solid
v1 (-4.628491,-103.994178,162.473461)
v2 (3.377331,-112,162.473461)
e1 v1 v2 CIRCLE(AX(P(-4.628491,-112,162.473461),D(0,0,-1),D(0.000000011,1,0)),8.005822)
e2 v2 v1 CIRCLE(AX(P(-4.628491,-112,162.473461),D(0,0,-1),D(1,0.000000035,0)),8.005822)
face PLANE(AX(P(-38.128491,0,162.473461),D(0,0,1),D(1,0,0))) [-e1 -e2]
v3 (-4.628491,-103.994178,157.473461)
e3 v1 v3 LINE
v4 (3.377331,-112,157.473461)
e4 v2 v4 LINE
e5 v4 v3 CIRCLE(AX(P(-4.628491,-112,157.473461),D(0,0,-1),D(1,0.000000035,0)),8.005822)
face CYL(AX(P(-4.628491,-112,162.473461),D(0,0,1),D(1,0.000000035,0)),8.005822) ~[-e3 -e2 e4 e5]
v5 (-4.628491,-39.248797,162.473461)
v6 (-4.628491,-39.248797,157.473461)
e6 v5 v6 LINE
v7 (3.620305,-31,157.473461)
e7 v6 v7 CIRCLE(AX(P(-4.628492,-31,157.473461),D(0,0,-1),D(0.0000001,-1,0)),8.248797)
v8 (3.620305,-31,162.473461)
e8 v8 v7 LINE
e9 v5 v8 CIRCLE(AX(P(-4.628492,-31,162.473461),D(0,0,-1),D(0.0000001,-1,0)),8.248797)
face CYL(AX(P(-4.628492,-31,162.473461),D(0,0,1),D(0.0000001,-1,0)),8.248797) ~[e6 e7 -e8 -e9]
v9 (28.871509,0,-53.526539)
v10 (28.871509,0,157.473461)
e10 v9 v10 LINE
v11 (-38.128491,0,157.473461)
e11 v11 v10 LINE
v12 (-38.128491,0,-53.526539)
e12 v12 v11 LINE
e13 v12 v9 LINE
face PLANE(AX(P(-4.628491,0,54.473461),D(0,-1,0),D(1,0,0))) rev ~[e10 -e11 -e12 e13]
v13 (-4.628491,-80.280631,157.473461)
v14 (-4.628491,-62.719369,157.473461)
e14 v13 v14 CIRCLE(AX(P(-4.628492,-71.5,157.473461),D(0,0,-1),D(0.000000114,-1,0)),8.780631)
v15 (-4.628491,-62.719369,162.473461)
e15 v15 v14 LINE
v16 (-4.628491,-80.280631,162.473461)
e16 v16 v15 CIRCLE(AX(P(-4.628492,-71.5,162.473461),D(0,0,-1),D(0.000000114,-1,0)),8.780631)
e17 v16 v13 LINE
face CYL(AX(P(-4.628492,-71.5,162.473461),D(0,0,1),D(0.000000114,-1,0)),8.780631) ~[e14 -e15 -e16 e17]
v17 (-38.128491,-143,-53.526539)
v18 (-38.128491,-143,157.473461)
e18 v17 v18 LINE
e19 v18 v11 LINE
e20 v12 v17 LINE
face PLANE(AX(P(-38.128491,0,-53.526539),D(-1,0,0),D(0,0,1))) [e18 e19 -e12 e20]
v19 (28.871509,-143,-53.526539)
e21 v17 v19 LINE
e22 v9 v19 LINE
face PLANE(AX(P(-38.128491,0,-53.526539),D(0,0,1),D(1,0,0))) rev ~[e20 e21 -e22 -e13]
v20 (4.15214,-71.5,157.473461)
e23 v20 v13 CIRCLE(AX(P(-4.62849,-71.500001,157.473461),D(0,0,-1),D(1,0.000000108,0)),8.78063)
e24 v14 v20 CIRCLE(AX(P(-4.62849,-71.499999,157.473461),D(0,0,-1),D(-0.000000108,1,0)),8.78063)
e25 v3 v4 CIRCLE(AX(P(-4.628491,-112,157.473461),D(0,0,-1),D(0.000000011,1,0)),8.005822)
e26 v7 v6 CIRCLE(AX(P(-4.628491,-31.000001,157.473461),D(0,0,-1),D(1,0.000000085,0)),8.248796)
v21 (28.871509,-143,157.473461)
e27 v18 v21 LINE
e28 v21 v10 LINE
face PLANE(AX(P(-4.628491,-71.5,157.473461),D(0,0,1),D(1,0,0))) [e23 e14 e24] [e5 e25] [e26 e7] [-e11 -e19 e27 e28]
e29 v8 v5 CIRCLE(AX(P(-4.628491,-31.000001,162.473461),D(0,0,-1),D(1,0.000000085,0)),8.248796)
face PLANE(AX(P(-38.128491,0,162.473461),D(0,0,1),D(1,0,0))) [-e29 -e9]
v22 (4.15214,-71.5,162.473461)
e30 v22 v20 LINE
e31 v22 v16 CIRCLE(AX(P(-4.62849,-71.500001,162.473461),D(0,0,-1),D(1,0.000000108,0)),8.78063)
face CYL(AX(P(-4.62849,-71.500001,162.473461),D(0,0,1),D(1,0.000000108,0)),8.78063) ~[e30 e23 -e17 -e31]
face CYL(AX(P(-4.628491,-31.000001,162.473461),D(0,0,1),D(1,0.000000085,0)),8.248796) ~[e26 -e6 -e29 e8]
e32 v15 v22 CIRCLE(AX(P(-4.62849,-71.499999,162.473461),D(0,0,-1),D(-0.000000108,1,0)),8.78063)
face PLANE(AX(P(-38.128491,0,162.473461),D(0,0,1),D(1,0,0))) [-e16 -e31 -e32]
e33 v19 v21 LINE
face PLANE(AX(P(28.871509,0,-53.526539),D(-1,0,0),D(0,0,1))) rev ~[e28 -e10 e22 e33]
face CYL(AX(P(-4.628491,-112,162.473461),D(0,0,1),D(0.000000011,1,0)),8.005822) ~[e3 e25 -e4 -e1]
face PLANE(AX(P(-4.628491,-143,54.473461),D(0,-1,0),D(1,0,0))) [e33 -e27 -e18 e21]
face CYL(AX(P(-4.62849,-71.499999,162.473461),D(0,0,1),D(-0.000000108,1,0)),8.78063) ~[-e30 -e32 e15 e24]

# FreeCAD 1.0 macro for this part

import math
import FreeCAD as App
import Part
import Sketcher
Q = App.Units.Quantity


def add_polygon(sketch, points):
    """Adds a closed chain of lines whose ends are joined by coincident constraints."""
    first, n = sketch.GeometryCount, len(points)
    for a, b in zip(points, points[1:] + points[:1]):
        sketch.addGeometry(Part.LineSegment(App.Vector(*a, 0), App.Vector(*b, 0)), False)
    for i in range(n):
        sketch.addConstraint(Sketcher.Constraint("Coincident", first + i, 2, first + (i + 1) % n, 1))

doc = App.newDocument("Part")
body = doc.addObject("PartDesign::Body", "Body")

sketch1 = body.newObject("Sketcher::SketchObject", "Sketch")
sketch1.AttachmentSupport = (doc.getObject("XZ_Plane"), [""])
sketch1.MapMode = "FlatFace"
add_polygon(sketch1, [(-38, 162), (-38, -54), (29, -54), (29, 162)])
sketch1.addConstraint(Sketcher.Constraint("Vertical", 0))
sketch1.addConstraint(Sketcher.Constraint("Horizontal", 1))
sketch1.addConstraint(Sketcher.Constraint("Vertical", 2))
sketch1.addConstraint(Sketcher.Constraint("Horizontal", 3))
sketch1.addConstraint(Sketcher.Constraint("DistanceX", 1, 1, 1, 2, Q("67 mm")))
sketch1.addConstraint(Sketcher.Constraint("DistanceY", 0, 2, 0, 1, Q("216 mm")))
sketch1.addConstraint(Sketcher.Constraint("DistanceX", 0, 2, -1, 1, Q("38.128491 mm")))
sketch1.addConstraint(Sketcher.Constraint("DistanceY", 0, 2, -1, 1, Q("53.526539 mm")))
pad1 = body.newObject("PartDesign::Pad", "Pad")
pad1.Profile = sketch1
pad1.Length = 143

sketch2 = body.newObject("Sketcher::SketchObject", "Sketch001")
sketch2.AttachmentSupport = (doc.getObject("XY_Plane"), [""])
sketch2.MapMode = "FlatFace"
sketch2.AttachmentOffset = App.Placement(App.Vector(0, 0, 162.473461), App.Rotation())
add_polygon(sketch2, [(-38, 0), (-38, -143), (29, -143), (29, 0)])
sketch2.addGeometry(Part.ArcOfCircle(Part.Circle(App.Vector(-5, -112, 0), App.Vector(0, 0, 1), 8), math.radians(0), math.radians(90)), False)
sketch2.addGeometry(Part.ArcOfCircle(Part.Circle(App.Vector(-5, -112, 0), App.Vector(0, 0, 1), 8), math.radians(90), math.radians(360)), False)
sketch2.addGeometry(Part.ArcOfCircle(Part.Circle(App.Vector(-5, -72, 0), App.Vector(0, 0, 1), 9), math.radians(-90), math.radians(0)), False)
sketch2.addGeometry(Part.ArcOfCircle(Part.Circle(App.Vector(-5, -72, 0), App.Vector(0, 0, 1), 9), math.radians(90), math.radians(270)), False)
sketch2.addGeometry(Part.ArcOfCircle(Part.Circle(App.Vector(-5, -71, 0), App.Vector(0, 0, 1), 9), math.radians(0), math.radians(90)), False)
sketch2.addGeometry(Part.ArcOfCircle(Part.Circle(App.Vector(-5, -31, 0), App.Vector(0, 0, 1), 8), math.radians(0), math.radians(270)), False)
sketch2.addGeometry(Part.ArcOfCircle(Part.Circle(App.Vector(-5, -31, 0), App.Vector(0, 0, 1), 8), math.radians(-90), math.radians(0)), False)
sketch2.addConstraint(Sketcher.Constraint("Tangent", 4, 1, 5, 2))
sketch2.addConstraint(Sketcher.Constraint("Coincident", 5, 1, 4, 2))
sketch2.addConstraint(Sketcher.Constraint("Tangent", 6, 1, 7, 2))
sketch2.addConstraint(Sketcher.Constraint("Tangent", 7, 1, 8, 2))
sketch2.addConstraint(Sketcher.Constraint("Tangent", 8, 1, 6, 2))
sketch2.addConstraint(Sketcher.Constraint("Tangent", 9, 1, 10, 2))
sketch2.addConstraint(Sketcher.Constraint("Coincident", 10, 1, 9, 2))
sketch2.addConstraint(Sketcher.Constraint("Vertical", 0))
sketch2.addConstraint(Sketcher.Constraint("Horizontal", 1))
sketch2.addConstraint(Sketcher.Constraint("Vertical", 2))
sketch2.addConstraint(Sketcher.Constraint("Horizontal", 3))
sketch2.addConstraint(Sketcher.Constraint("PointOnObject", 2, 2, -1))
sketch2.addConstraint(Sketcher.Constraint("Horizontal", 5, 3, 4, 1))
sketch2.addConstraint(Sketcher.Constraint("Horizontal", 7, 3, 8, 1))
sketch2.addConstraint(Sketcher.Constraint("Horizontal", 10, 3, 9, 1))
sketch2.addConstraint(Sketcher.Constraint("Vertical", 5, 3, 6, 3))
sketch2.addConstraint(Sketcher.Constraint("Vertical", 8, 3, 9, 3))
sketch2.addConstraint(Sketcher.Constraint("Vertical", 10, 3, 5, 1))
sketch2.addConstraint(Sketcher.Constraint("Vertical", 5, 1, 6, 1))
sketch2.addConstraint(Sketcher.Constraint("Vertical", 6, 1, 7, 1))
sketch2.addConstraint(Sketcher.Constraint("Vertical", 7, 1, 10, 1))
sketch2.addConstraint(Sketcher.Constraint("DistanceX", 1, 1, 1, 2, Q("67 mm")))
sketch2.addConstraint(Sketcher.Constraint("DistanceY", 0, 2, 0, 1, Q("143 mm")))
sketch2.addConstraint(Sketcher.Constraint("DistanceY", 4, 3, -1, 1, Q("112 mm")))
sketch2.addConstraint(Sketcher.Constraint("DistanceY", 9, 3, -1, 1, Q("31 mm")))
sketch2.addConstraint(Sketcher.Constraint("DistanceY", 6, 3, -1, 1, Q("71.500001 mm")))
sketch2.addConstraint(Sketcher.Constraint("DistanceX", 0, 2, 5, 3, Q("33.5 mm")))
sketch2.addConstraint(Sketcher.Constraint("Radius", 6, Q("8.78063 mm")))
sketch2.addConstraint(Sketcher.Constraint("Radius", 4, Q("8.005822 mm")))
sketch2.addConstraint(Sketcher.Constraint("Radius", 9, Q("8.248797 mm")))
sketch2.addConstraint(Sketcher.Constraint("DistanceX", 4, 3, -1, 1, Q("4.628491 mm")))
pocket1 = body.newObject("PartDesign::Pocket", "Pocket")
pocket1.Profile = sketch2
pocket1.Length = 5

doc.recompute()
